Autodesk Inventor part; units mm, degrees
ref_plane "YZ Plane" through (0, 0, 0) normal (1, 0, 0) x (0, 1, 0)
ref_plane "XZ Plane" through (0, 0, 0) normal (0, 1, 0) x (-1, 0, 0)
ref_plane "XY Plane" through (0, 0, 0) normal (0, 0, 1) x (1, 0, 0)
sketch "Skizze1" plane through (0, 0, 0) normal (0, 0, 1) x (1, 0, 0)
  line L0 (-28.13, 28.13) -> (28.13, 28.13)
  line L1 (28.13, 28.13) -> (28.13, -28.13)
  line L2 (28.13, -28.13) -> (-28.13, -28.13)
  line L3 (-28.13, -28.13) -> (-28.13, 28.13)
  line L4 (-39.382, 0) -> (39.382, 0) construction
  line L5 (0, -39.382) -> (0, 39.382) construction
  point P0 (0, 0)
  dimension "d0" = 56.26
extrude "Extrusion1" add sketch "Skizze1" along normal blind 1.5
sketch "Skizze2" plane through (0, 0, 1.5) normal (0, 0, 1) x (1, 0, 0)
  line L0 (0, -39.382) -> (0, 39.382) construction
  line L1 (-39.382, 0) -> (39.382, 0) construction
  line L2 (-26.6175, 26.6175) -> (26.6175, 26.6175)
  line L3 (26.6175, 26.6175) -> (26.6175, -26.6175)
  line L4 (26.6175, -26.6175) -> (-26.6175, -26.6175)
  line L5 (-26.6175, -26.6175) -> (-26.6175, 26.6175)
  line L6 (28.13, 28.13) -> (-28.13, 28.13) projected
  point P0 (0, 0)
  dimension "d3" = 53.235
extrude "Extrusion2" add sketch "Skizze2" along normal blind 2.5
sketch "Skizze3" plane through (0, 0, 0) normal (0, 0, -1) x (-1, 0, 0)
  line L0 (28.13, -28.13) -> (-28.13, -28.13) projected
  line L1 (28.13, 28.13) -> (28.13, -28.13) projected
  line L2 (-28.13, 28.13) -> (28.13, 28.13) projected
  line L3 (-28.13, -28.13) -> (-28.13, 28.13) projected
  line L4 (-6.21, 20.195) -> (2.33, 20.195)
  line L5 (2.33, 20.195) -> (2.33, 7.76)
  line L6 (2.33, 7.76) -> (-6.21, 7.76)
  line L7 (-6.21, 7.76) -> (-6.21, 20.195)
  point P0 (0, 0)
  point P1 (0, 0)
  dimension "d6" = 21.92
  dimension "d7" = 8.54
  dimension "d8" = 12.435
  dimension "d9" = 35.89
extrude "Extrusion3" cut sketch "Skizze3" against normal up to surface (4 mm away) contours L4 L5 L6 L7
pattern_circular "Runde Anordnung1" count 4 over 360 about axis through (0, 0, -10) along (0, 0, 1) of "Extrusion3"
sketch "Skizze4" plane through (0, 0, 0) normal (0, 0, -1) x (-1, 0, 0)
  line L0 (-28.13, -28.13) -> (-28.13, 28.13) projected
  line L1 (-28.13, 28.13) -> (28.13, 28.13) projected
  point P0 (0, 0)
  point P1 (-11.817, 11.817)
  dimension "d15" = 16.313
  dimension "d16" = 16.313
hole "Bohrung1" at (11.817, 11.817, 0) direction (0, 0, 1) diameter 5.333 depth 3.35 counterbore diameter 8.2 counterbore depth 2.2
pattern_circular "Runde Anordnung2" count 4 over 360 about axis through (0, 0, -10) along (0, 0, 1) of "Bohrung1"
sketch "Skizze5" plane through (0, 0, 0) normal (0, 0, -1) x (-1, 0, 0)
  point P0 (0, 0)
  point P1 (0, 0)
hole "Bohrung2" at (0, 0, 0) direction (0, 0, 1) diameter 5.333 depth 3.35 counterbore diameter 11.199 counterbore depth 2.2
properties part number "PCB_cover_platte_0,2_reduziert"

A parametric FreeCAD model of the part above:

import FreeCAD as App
import Part
import Sketcher
from FreeCAD import Vector
Q = App.Units.Quantity

doc = App.newDocument("Part")
body = doc.addObject("PartDesign::Body", "Body")

# Sketch on XY plane
sketch1 = body.newObject("Sketcher::SketchObject", "Sketch")
sketch1.AttachmentSupport = (doc.getObject("XY_Plane"), [""])
sketch1.MapMode = "FlatFace"
sketch1.addGeometry([
    Part.LineSegment(Vector(28, 28, 0), Vector(-28, 28, 0)),
    Part.LineSegment(Vector(-28, 28, 0), Vector(-28, -28, 0)),
    Part.LineSegment(Vector(-28, -28, 0), Vector(28, -28, 0)),
    Part.LineSegment(Vector(28, -28, 0), Vector(28, 28, 0)),
], False)
sketch1.addConstraint([
    Sketcher.Constraint("Coincident", 0, 2, 1, 1),
    Sketcher.Constraint("Coincident", 1, 2, 2, 1),
    Sketcher.Constraint("Coincident", 2, 2, 3, 1),
    Sketcher.Constraint("Coincident", 3, 2, 0, 1),
    Sketcher.Constraint("Horizontal", 0),
    Sketcher.Constraint("Vertical", 1),
    Sketcher.Constraint("Horizontal", 2),
    Sketcher.Constraint("Vertical", 3),
    Sketcher.Constraint("Symmetric", 0, 2, 2, 2, -1, 1),
    Sketcher.Constraint("Equal", 2, 1),
    Sketcher.Constraint("DistanceX", 0, 2, 0, 1, Q("56.26 mm")),
])
pad1 = body.newObject("PartDesign::Pad", "Pad")
pad1.Profile = sketch1
pad1.Length = 1.5

# Sketch on XY plane
sketch2 = body.newObject("Sketcher::SketchObject", "Sketch001")
sketch2.AttachmentSupport = (doc.getObject("XY_Plane"), [""])
sketch2.MapMode = "FlatFace"
sketch2.AttachmentOffset = App.Placement(Vector(0, 0, 1.5), App.Rotation())
sketch2.addGeometry([
    Part.LineSegment(Vector(27, 27, 0), Vector(-27, 27, 0)),
    Part.LineSegment(Vector(-27, 27, 0), Vector(-27, -27, 0)),
    Part.LineSegment(Vector(-27, -27, 0), Vector(27, -27, 0)),
    Part.LineSegment(Vector(27, -27, 0), Vector(27, 27, 0)),
], False)
sketch2.addConstraint([
    Sketcher.Constraint("Coincident", 0, 2, 1, 1),
    Sketcher.Constraint("Coincident", 1, 2, 2, 1),
    Sketcher.Constraint("Coincident", 2, 2, 3, 1),
    Sketcher.Constraint("Coincident", 3, 2, 0, 1),
    Sketcher.Constraint("Horizontal", 0),
    Sketcher.Constraint("Vertical", 1),
    Sketcher.Constraint("Horizontal", 2),
    Sketcher.Constraint("Vertical", 3),
    Sketcher.Constraint("Symmetric", 0, 2, 2, 2, -1, 1),
    Sketcher.Constraint("Equal", 2, 1),
    Sketcher.Constraint("DistanceX", 0, 2, 0, 1, Q("53.235 mm")),
])
pad2 = body.newObject("PartDesign::Pad", "Pad001")
pad2.Profile = sketch2
pad2.Length = 2.5

# Sketch on XY plane
sketch3 = body.newObject("Sketcher::SketchObject", "Sketch002")
sketch3.AttachmentSupport = (doc.getObject("XY_Plane"), [""])
sketch3.MapMode = "FlatFace"
sketch3.addGeometry([
    Part.LineSegment(Vector(-2, 20, 0), Vector(6, 20, 0)),
    Part.LineSegment(Vector(6, 20, 0), Vector(6, 8, 0)),
    Part.LineSegment(Vector(6, 8, 0), Vector(-2, 8, 0)),
    Part.LineSegment(Vector(-2, 8, 0), Vector(-2, 20, 0)),
], False)
sketch3.addConstraint([
    Sketcher.Constraint("Coincident", 0, 2, 1, 1),
    Sketcher.Constraint("Coincident", 1, 2, 2, 1),
    Sketcher.Constraint("Coincident", 2, 2, 3, 1),
    Sketcher.Constraint("Coincident", 3, 2, 0, 1),
    Sketcher.Constraint("Horizontal", 0),
    Sketcher.Constraint("Vertical", 1),
    Sketcher.Constraint("Horizontal", 2),
    Sketcher.Constraint("Vertical", 3),
    Sketcher.Constraint("DistanceX", 0, 1, 0, 2, Q("8.54 mm")),
    Sketcher.Constraint("DistanceY", 1, 2, 1, 1, Q("12.435 mm")),
    Sketcher.Constraint("DistanceX", -1, 1, 0, 2, Q("6.21 mm")),
    Sketcher.Constraint("DistanceY", -1, 1, 1, 2, Q("7.76 mm")),
])
pocket1 = body.newObject("PartDesign::Pocket", "Pocket")
pocket1.Profile = sketch3
pocket1.Length = 4
pocket1.Reversed = True
doc.recompute()

polarpattern = body.newObject("PartDesign::PolarPattern", "PolarPattern")
polarpattern.Originals = [pocket1]
polarpattern.Axis = (doc.getObject("Z_Axis"), [""])
polarpattern.Angle = 360
polarpattern.Occurrences = 4
body.Tip = polarpattern

# Sketch on XY plane
sketch4 = body.newObject("Sketcher::SketchObject", "Sketch003")
sketch4.AttachmentSupport = (doc.getObject("XY_Plane"), [""])
sketch4.MapMode = "FlatFace"
sketch4.addGeometry(Part.Circle(Vector(11.8, 11.8, 0), Vector(0, 0, 1), 2.7), False)
sketch4.addConstraint([
    Sketcher.Constraint("Diameter", 0, Q("5.333 mm")),
    Sketcher.Constraint("DistanceX", -1, 1, 0, 3, Q("11.817 mm")),
    Sketcher.Constraint("DistanceY", -1, 1, 0, 3, Q("11.817 mm")),
])
doc.recompute()
hole = body.newObject("PartDesign::Hole", "Hole")
hole.Profile = sketch4
hole.ThreadType = "None"
hole.Diameter = 5.333
hole.DepthType = "Dimension"
hole.Depth = 3.35
hole.DrillPoint = "Flat"
hole.HoleCutType = "Counterbore"
hole.HoleCutDiameter = 8.2
hole.HoleCutDepth = 2.2
hole.Reversed = True
doc.recompute()

polarpattern2 = body.newObject("PartDesign::PolarPattern", "PolarPattern001")
polarpattern2.Originals = [hole]
polarpattern2.Axis = (doc.getObject("Z_Axis"), [""])
polarpattern2.Angle = 360
polarpattern2.Occurrences = 4
body.Tip = polarpattern2

# Sketch on XY plane
sketch5 = body.newObject("Sketcher::SketchObject", "Sketch004")
sketch5.AttachmentSupport = (doc.getObject("XY_Plane"), [""])
sketch5.MapMode = "FlatFace"
sketch5.addGeometry(Part.Circle(Vector(0, 0, 0), Vector(0, 0, 1), 2.7), False)
sketch5.addConstraint([
    Sketcher.Constraint("Coincident", 0, 3, -1, 1),
    Sketcher.Constraint("Diameter", 0, Q("5.333 mm")),
])
doc.recompute()
hole2 = body.newObject("PartDesign::Hole", "Hole001")
hole2.Profile = sketch5
hole2.ThreadType = "None"
hole2.Diameter = 5.333
hole2.DepthType = "Dimension"
hole2.Depth = 3.35
hole2.DrillPoint = "Flat"
hole2.HoleCutType = "Counterbore"
hole2.HoleCutDiameter = 11.199
hole2.HoleCutDepth = 2.2
hole2.Reversed = True

doc.recompute()
